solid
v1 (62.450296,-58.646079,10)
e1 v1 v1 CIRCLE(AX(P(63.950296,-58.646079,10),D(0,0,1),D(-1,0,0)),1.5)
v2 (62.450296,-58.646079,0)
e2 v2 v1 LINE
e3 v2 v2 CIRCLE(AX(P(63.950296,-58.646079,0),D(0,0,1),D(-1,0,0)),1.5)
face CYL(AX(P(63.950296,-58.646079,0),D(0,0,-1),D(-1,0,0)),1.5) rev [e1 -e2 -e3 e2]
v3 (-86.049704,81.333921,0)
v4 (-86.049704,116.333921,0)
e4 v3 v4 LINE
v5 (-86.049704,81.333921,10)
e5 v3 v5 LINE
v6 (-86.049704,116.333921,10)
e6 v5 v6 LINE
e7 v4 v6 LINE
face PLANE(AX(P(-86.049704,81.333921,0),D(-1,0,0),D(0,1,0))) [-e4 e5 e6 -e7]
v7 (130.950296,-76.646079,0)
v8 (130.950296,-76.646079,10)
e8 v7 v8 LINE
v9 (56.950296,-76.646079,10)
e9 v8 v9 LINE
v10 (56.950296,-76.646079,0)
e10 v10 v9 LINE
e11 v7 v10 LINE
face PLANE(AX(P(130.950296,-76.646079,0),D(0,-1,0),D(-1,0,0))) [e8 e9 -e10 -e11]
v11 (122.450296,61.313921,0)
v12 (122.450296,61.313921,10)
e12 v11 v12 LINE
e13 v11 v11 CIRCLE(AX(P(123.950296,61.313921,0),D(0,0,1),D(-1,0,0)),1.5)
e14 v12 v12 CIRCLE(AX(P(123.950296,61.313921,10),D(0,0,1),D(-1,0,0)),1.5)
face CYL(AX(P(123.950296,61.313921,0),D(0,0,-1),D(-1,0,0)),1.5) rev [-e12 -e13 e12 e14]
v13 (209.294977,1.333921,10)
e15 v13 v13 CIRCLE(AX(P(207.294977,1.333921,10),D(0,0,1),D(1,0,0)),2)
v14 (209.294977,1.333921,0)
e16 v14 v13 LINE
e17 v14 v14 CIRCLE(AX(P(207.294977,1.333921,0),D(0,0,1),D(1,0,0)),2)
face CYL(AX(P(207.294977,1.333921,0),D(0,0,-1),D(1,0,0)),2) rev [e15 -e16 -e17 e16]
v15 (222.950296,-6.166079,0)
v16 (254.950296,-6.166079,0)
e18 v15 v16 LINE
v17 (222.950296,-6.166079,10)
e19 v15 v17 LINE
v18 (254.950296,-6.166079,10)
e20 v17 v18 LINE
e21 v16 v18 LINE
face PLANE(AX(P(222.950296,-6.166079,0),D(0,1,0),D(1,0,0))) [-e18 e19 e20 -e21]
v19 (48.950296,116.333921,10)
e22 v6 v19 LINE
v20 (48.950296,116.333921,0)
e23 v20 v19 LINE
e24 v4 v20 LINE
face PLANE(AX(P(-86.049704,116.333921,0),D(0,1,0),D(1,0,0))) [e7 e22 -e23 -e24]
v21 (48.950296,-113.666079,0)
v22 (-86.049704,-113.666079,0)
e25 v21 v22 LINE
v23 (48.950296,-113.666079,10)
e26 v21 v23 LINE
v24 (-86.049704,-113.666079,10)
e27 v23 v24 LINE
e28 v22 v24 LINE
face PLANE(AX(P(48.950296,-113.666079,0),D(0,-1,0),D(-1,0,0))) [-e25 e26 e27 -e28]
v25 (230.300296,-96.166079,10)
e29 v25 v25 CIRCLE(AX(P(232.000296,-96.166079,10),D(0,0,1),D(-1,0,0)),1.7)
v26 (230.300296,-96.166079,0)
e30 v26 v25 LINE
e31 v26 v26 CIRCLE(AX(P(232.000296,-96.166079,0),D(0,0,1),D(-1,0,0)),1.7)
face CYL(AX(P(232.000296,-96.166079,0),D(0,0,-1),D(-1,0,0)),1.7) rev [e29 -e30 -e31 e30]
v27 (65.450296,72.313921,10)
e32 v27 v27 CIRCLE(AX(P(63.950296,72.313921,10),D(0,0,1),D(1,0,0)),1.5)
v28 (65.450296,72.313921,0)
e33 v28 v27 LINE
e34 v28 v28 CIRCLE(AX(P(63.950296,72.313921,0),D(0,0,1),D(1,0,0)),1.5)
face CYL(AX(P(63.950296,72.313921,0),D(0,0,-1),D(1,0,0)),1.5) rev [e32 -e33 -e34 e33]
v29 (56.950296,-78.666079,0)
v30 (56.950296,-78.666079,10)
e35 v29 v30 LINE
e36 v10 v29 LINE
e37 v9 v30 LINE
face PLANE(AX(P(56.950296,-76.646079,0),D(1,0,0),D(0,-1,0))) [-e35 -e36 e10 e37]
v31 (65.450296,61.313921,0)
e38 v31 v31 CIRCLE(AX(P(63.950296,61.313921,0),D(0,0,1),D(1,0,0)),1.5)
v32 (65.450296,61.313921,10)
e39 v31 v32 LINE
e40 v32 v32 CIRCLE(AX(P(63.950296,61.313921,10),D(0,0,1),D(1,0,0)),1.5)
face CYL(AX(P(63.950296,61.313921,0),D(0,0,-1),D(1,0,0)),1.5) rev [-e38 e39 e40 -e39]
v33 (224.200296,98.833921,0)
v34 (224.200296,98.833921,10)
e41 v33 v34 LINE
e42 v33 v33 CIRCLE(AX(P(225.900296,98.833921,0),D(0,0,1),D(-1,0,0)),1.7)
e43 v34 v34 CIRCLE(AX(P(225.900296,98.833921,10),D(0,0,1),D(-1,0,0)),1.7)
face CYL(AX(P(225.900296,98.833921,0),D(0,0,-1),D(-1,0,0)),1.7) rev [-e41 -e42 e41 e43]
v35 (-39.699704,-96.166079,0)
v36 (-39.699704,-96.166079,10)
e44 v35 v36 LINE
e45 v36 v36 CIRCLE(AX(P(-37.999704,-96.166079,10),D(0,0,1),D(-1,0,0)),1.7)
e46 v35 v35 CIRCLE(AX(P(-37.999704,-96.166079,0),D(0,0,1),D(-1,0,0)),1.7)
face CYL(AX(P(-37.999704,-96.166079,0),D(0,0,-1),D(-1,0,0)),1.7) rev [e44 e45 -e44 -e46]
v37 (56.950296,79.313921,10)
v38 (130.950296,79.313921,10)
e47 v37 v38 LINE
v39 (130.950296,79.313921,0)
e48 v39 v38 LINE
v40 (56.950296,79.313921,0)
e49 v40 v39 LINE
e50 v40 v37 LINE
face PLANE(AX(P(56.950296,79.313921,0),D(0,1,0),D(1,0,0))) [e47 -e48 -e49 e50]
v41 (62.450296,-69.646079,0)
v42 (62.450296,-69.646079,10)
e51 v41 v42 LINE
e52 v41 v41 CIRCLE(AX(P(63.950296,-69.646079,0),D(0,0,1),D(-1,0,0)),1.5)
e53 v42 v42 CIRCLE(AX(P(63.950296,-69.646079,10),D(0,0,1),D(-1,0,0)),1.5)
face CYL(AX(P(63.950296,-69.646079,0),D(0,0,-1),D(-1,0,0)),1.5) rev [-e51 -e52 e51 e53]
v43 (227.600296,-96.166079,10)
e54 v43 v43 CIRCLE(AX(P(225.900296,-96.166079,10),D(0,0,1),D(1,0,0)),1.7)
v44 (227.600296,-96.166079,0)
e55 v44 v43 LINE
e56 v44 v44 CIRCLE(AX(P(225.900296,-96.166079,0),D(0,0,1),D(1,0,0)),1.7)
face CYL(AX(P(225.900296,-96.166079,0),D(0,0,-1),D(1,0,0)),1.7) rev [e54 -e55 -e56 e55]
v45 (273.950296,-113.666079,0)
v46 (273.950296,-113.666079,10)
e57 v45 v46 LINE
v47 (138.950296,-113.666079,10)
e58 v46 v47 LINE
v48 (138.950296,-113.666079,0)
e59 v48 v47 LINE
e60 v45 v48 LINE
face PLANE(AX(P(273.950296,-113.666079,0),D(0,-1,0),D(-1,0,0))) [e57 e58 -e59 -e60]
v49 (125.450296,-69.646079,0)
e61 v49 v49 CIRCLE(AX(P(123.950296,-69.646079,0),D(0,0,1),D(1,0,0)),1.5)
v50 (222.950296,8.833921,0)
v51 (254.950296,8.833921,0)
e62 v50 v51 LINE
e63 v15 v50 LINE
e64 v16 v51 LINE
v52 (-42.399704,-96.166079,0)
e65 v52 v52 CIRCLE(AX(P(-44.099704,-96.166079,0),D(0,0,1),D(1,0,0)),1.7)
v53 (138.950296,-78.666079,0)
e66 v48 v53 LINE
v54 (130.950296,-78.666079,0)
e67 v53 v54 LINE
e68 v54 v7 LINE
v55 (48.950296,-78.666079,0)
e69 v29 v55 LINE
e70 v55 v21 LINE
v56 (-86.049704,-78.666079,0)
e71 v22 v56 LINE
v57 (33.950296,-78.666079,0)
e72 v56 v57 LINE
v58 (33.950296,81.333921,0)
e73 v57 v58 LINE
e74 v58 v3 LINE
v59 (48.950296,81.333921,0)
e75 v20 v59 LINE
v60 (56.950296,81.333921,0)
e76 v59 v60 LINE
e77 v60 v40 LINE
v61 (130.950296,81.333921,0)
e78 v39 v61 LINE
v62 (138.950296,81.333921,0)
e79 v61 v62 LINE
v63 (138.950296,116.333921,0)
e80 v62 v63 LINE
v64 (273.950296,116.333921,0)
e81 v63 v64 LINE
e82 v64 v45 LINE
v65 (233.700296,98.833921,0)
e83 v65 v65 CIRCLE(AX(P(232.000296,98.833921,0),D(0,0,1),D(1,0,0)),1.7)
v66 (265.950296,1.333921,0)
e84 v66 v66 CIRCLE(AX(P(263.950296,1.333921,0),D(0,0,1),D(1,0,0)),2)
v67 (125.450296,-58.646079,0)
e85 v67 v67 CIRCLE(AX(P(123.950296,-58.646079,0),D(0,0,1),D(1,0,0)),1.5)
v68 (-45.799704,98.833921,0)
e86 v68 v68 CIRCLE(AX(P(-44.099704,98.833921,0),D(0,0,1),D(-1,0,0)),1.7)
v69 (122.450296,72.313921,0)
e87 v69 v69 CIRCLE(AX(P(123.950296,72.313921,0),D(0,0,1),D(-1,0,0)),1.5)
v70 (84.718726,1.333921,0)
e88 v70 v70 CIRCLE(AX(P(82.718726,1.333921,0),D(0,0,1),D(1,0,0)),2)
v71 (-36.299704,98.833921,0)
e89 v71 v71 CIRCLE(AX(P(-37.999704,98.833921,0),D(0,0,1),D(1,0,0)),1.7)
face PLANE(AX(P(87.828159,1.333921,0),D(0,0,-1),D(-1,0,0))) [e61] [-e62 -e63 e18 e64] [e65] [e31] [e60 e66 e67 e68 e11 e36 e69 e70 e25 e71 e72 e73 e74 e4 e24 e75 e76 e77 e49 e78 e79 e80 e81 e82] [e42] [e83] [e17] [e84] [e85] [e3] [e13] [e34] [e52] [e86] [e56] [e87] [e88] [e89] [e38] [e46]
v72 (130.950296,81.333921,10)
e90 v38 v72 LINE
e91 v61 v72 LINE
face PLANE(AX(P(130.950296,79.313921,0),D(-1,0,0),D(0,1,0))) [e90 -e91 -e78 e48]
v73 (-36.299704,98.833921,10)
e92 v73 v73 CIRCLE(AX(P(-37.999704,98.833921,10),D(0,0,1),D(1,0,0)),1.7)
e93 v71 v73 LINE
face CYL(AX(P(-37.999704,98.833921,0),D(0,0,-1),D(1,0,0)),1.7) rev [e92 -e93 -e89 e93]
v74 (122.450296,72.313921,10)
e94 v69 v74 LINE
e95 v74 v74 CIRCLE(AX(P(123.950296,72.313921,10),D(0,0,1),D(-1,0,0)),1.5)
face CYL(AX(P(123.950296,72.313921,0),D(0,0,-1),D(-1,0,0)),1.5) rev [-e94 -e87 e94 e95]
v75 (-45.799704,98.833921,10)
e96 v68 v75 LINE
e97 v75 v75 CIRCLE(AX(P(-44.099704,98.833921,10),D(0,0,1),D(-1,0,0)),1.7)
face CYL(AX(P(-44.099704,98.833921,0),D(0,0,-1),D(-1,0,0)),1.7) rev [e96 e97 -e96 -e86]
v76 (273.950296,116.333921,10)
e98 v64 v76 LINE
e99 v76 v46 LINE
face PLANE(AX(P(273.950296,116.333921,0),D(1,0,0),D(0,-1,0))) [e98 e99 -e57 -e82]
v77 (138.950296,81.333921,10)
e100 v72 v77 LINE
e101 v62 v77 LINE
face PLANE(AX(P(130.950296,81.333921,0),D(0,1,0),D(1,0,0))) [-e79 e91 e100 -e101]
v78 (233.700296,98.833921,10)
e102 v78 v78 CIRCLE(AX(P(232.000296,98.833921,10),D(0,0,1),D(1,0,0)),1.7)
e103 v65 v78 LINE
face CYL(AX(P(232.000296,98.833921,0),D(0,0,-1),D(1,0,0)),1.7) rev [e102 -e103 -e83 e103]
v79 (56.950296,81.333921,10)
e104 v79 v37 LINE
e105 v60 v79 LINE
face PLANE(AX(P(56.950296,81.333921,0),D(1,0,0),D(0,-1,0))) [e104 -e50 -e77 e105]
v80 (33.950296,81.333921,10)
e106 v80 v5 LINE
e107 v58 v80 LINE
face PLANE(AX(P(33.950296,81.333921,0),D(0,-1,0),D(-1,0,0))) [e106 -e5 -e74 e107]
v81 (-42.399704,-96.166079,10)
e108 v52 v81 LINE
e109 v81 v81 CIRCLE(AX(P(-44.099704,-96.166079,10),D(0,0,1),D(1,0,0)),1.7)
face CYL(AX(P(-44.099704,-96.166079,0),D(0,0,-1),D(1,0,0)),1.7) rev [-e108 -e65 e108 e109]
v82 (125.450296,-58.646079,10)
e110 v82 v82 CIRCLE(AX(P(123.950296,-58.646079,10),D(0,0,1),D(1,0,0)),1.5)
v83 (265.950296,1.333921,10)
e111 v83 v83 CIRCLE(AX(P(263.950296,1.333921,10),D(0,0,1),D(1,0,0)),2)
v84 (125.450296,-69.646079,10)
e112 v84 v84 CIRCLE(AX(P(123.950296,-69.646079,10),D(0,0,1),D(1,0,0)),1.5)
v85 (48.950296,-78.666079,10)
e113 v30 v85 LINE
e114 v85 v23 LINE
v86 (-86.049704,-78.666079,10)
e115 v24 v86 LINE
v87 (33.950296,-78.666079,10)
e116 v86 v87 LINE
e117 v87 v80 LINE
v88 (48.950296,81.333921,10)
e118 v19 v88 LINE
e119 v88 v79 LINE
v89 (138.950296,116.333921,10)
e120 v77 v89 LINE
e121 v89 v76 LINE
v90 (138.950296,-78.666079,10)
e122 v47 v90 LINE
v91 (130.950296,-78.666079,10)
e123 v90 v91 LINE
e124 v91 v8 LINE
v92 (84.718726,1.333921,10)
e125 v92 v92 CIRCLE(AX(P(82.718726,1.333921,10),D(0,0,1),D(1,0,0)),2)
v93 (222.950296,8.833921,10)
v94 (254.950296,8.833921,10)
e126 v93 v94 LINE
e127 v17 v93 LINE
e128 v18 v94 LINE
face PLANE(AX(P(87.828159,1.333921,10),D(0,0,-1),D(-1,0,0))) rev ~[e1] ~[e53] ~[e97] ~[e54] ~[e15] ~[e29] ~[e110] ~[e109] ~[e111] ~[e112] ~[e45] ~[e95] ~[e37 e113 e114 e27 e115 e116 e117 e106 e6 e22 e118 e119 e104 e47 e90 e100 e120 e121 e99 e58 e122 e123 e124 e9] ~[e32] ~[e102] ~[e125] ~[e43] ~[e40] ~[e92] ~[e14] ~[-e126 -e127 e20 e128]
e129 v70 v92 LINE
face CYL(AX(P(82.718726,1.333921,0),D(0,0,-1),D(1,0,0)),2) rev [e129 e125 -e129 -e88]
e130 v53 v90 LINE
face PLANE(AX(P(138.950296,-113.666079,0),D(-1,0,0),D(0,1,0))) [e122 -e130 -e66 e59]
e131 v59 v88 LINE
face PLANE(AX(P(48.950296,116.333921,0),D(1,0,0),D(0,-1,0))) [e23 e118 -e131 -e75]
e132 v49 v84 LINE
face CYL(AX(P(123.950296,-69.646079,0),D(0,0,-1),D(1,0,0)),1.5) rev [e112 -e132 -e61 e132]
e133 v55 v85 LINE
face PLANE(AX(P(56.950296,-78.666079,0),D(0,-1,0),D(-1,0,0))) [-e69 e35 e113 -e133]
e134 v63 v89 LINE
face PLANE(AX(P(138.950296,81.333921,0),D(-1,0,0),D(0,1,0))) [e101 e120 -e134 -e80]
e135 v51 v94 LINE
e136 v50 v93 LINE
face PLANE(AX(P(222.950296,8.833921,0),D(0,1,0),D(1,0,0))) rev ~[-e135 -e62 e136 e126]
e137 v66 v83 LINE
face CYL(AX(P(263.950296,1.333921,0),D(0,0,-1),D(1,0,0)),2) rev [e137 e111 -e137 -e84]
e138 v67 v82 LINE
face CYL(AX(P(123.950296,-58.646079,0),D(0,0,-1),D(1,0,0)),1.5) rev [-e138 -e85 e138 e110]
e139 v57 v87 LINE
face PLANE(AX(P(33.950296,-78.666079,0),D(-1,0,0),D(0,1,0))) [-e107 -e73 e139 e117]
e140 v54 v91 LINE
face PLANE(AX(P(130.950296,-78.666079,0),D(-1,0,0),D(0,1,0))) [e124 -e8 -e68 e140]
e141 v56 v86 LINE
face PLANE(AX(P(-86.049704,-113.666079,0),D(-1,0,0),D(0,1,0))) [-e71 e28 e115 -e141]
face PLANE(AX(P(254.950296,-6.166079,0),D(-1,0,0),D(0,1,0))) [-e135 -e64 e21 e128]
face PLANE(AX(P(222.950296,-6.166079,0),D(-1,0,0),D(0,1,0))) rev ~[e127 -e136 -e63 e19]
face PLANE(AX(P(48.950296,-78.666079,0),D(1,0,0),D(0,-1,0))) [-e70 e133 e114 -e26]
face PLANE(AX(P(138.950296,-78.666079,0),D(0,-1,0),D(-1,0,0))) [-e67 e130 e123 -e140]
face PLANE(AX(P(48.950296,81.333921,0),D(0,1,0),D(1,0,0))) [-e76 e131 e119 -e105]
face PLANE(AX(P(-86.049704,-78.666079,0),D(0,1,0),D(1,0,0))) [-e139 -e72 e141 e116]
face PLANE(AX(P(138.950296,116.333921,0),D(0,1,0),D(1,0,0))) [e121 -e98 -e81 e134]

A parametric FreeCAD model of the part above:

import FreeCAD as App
import Part
import Sketcher
Q = App.Units.Quantity


def add_polygon(sketch, points):
    """Adds a closed chain of lines whose ends are joined by coincident constraints."""
    first, n = sketch.GeometryCount, len(points)
    for a, b in zip(points, points[1:] + points[:1]):
        sketch.addGeometry(Part.LineSegment(App.Vector(*a, 0), App.Vector(*b, 0)), False)
    for i in range(n):
        sketch.addConstraint(Sketcher.Constraint("Coincident", first + i, 2, first + (i + 1) % n, 1))

doc = App.newDocument("Part")
body = doc.addObject("PartDesign::Body", "Body")

# Sketch on XY plane
sketch1 = doc.addObject("Sketcher::SketchObject", "Sketch")
body.addObject(sketch1)
sketch1.AttachmentSupport = (doc.XY_Plane, [""])
sketch1.MapMode = "FlatFace"
add_polygon(sketch1, [(49, 116.3), (-86, 116.3), (-86, 81.3), (34, 81.3), (34, -78.7), (-86, -78.7), (-86, -113.7), (49, -113.7), (49, -78.7), (57, -78.7), (57, -76.6), (131, -76.6), (131, -78.7), (139, -78.7), (139, -113.7), (274, -113.7), (274, 116.3), (139, 116.3), (139, 81.3), (131, 81.3), (131, 79.3), (57, 79.3), (57, 81.3), (49, 81.3)])  # lines 0-23
sketch1.addGeometry(Part.Circle(App.Vector(232, -96.2, 0), App.Vector(0, 0, 1), 1.7), False)  # 24
sketch1.addGeometry(Part.Circle(App.Vector(225.9, -96.2, 0), App.Vector(0, 0, 1), 1.7), False)  # 25
sketch1.addGeometry(Part.Circle(App.Vector(124, -69.6, 0), App.Vector(0, 0, 1), 1.5), False)  # 26
sketch1.addGeometry(Part.Circle(App.Vector(124, -58.6, 0), App.Vector(0, 0, 1), 1.5), False)  # 27
sketch1.addGeometry(Part.Circle(App.Vector(64, -69.6, 0), App.Vector(0, 0, 1), 1.5), False)  # 28
sketch1.addGeometry(Part.Circle(App.Vector(64, -58.6, 0), App.Vector(0, 0, 1), 1.5), False)  # 29
sketch1.addGeometry(Part.Circle(App.Vector(-38, -96.2, 0), App.Vector(0, 0, 1), 1.7), False)  # 30
sketch1.addGeometry(Part.Circle(App.Vector(-44.1, -96.2, 0), App.Vector(0, 0, 1), 1.7), False)  # 31
sketch1.addGeometry(Part.Circle(App.Vector(264, 1.3, 0), App.Vector(0, 0, 1), 2), False)  # 32
add_polygon(sketch1, [(223, -6.2), (223, 8.8), (255, 8.8), (255, -6.2)])  # lines 33-36
sketch1.addGeometry(Part.Circle(App.Vector(207.3, 1.3, 0), App.Vector(0, 0, 1), 2), False)  # 37
sketch1.addGeometry(Part.Circle(App.Vector(232, 98.8, 0), App.Vector(0, 0, 1), 1.7), False)  # 38
sketch1.addGeometry(Part.Circle(App.Vector(225.9, 98.8, 0), App.Vector(0, 0, 1), 1.7), False)  # 39
sketch1.addGeometry(Part.Circle(App.Vector(124, 61.3, 0), App.Vector(0, 0, 1), 1.5), False)  # 40
sketch1.addGeometry(Part.Circle(App.Vector(124, 72.3, 0), App.Vector(0, 0, 1), 1.5), False)  # 41
sketch1.addGeometry(Part.Circle(App.Vector(82.7, 1.3, 0), App.Vector(0, 0, 1), 2), False)  # 42
sketch1.addGeometry(Part.Circle(App.Vector(64, 61.3, 0), App.Vector(0, 0, 1), 1.5), False)  # 43
sketch1.addGeometry(Part.Circle(App.Vector(64, 72.3, 0), App.Vector(0, 0, 1), 1.5), False)  # 44
sketch1.addGeometry(Part.Circle(App.Vector(-38, 98.8, 0), App.Vector(0, 0, 1), 1.7), False)  # 45
sketch1.addGeometry(Part.Circle(App.Vector(-44.1, 98.8, 0), App.Vector(0, 0, 1), 1.7), False)  # 46
sketch1.addConstraint(Sketcher.Constraint("Horizontal", 0))
sketch1.addConstraint(Sketcher.Constraint("Vertical", 1))
sketch1.addConstraint(Sketcher.Constraint("Horizontal", 2))
sketch1.addConstraint(Sketcher.Constraint("Vertical", 3))
sketch1.addConstraint(Sketcher.Constraint("Horizontal", 4))
sketch1.addConstraint(Sketcher.Constraint("Vertical", 5))
sketch1.addConstraint(Sketcher.Constraint("Horizontal", 6))
sketch1.addConstraint(Sketcher.Constraint("Vertical", 7))
sketch1.addConstraint(Sketcher.Constraint("Horizontal", 8))
sketch1.addConstraint(Sketcher.Constraint("Vertical", 9))
sketch1.addConstraint(Sketcher.Constraint("Horizontal", 10))
sketch1.addConstraint(Sketcher.Constraint("Vertical", 11))
sketch1.addConstraint(Sketcher.Constraint("Horizontal", 12))
sketch1.addConstraint(Sketcher.Constraint("Vertical", 13))
sketch1.addConstraint(Sketcher.Constraint("Horizontal", 14))
sketch1.addConstraint(Sketcher.Constraint("Vertical", 15))
sketch1.addConstraint(Sketcher.Constraint("Horizontal", 16))
sketch1.addConstraint(Sketcher.Constraint("Vertical", 17))
sketch1.addConstraint(Sketcher.Constraint("Horizontal", 18))
sketch1.addConstraint(Sketcher.Constraint("Vertical", 19))
sketch1.addConstraint(Sketcher.Constraint("Horizontal", 20))
sketch1.addConstraint(Sketcher.Constraint("Vertical", 21))
sketch1.addConstraint(Sketcher.Constraint("Horizontal", 22))
sketch1.addConstraint(Sketcher.Constraint("Vertical", 23))
sketch1.addConstraint(Sketcher.Constraint("Vertical", 33))
sketch1.addConstraint(Sketcher.Constraint("Horizontal", 34))
sketch1.addConstraint(Sketcher.Constraint("Vertical", 35))
sketch1.addConstraint(Sketcher.Constraint("Horizontal", 36))
sketch1.addConstraint(Sketcher.Constraint("Equal", 24, 25))
sketch1.addConstraint(Sketcher.Constraint("Equal", 26, 27))
sketch1.addConstraint(Sketcher.Constraint("Equal", 27, 28))
sketch1.addConstraint(Sketcher.Constraint("Equal", 28, 29))
sketch1.addConstraint(Sketcher.Constraint("Equal", 25, 30))
sketch1.addConstraint(Sketcher.Constraint("Equal", 30, 31))
sketch1.addConstraint(Sketcher.Constraint("Equal", 32, 37))
sketch1.addConstraint(Sketcher.Constraint("Equal", 31, 38))
sketch1.addConstraint(Sketcher.Constraint("Equal", 38, 39))
sketch1.addConstraint(Sketcher.Constraint("Equal", 29, 40))
sketch1.addConstraint(Sketcher.Constraint("Equal", 40, 41))
sketch1.addConstraint(Sketcher.Constraint("Equal", 37, 42))
sketch1.addConstraint(Sketcher.Constraint("Equal", 41, 43))
sketch1.addConstraint(Sketcher.Constraint("Equal", 43, 44))
sketch1.addConstraint(Sketcher.Constraint("Equal", 39, 45))
sketch1.addConstraint(Sketcher.Constraint("Equal", 45, 46))
sketch1.addConstraint(Sketcher.Constraint("Horizontal", 24, 3, 25, 3))
sketch1.addConstraint(Sketcher.Constraint("Horizontal", 26, 3, 28, 3))
sketch1.addConstraint(Sketcher.Constraint("Horizontal", 27, 3, 29, 3))
sketch1.addConstraint(Sketcher.Constraint("Horizontal", 25, 3, 30, 3))
sketch1.addConstraint(Sketcher.Constraint("Horizontal", 30, 3, 31, 3))
sketch1.addConstraint(Sketcher.Constraint("Horizontal", 32, 3, 37, 3))
sketch1.addConstraint(Sketcher.Constraint("Horizontal", 38, 3, 39, 3))
sketch1.addConstraint(Sketcher.Constraint("Horizontal", 37, 3, 42, 3))
sketch1.addConstraint(Sketcher.Constraint("Horizontal", 40, 3, 43, 3))
sketch1.addConstraint(Sketcher.Constraint("Horizontal", 41, 3, 44, 3))
sketch1.addConstraint(Sketcher.Constraint("Horizontal", 39, 3, 45, 3))
sketch1.addConstraint(Sketcher.Constraint("Horizontal", 45, 3, 46, 3))
sketch1.addConstraint(Sketcher.Constraint("Horizontal", 4, 2, 7, 2))
sketch1.addConstraint(Sketcher.Constraint("Horizontal", 8, 2, 11, 2))
sketch1.addConstraint(Sketcher.Constraint("Horizontal", 6, 2, 13, 2))
sketch1.addConstraint(Sketcher.Constraint("Horizontal", 0, 2, 15, 2))
sketch1.addConstraint(Sketcher.Constraint("Horizontal", 2, 2, 17, 2))
sketch1.addConstraint(Sketcher.Constraint("Horizontal", 18, 2, 21, 2))
sketch1.addConstraint(Sketcher.Constraint("Vertical", 26, 3, 27, 3))
sketch1.addConstraint(Sketcher.Constraint("Vertical", 28, 3, 29, 3))
sketch1.addConstraint(Sketcher.Constraint("Vertical", 24, 3, 38, 3))
sketch1.addConstraint(Sketcher.Constraint("Vertical", 25, 3, 39, 3))
sketch1.addConstraint(Sketcher.Constraint("Vertical", 27, 3, 40, 3))
sketch1.addConstraint(Sketcher.Constraint("Vertical", 40, 3, 41, 3))
sketch1.addConstraint(Sketcher.Constraint("Vertical", 29, 3, 43, 3))
sketch1.addConstraint(Sketcher.Constraint("Vertical", 43, 3, 44, 3))
sketch1.addConstraint(Sketcher.Constraint("Vertical", 30, 3, 45, 3))
sketch1.addConstraint(Sketcher.Constraint("Vertical", 31, 3, 46, 3))
sketch1.addConstraint(Sketcher.Constraint("Vertical", 1, 2, 4, 2))
sketch1.addConstraint(Sketcher.Constraint("Vertical", 13, 2, 16, 2))
sketch1.addConstraint(Sketcher.Constraint("Vertical", 11, 2, 18, 2))
sketch1.addConstraint(Sketcher.Constraint("Vertical", 9, 2, 20, 2))
sketch1.addConstraint(Sketcher.Constraint("Vertical", 7, 2, 22, 2))
sketch1.addConstraint(Sketcher.Constraint("Equal", 8, 12))
sketch1.addConstraint(Sketcher.Constraint("Equal", 6, 14))
sketch1.addConstraint(Sketcher.Constraint("Equal", 1, 5))
sketch1.addConstraint(Sketcher.Constraint("Equal", 11, 19))
sketch1.addConstraint(Sketcher.Constraint("Diameter", 26, Q("3 mm")))
sketch1.addConstraint(Sketcher.Constraint("Diameter", 32, Q("4 mm")))
sketch1.addConstraint(Sketcher.Constraint("Diameter", 24, Q("3.4 mm")))
sketch1.addConstraint(Sketcher.Constraint("DistanceX", 0, 2, 0, 1, Q("135 mm")))
sketch1.addConstraint(Sketcher.Constraint("DistanceX", 2, 1, 2, 2, Q("120 mm")))
sketch1.addConstraint(Sketcher.Constraint("DistanceX", 8, 1, 8, 2, Q("8 mm")))
sketch1.addConstraint(Sketcher.Constraint("DistanceX", 10, 1, 10, 2, Q("74 mm")))
sketch1.addConstraint(Sketcher.Constraint("DistanceX", 34, 1, 34, 2, Q("32 mm")))
sketch1.addConstraint(Sketcher.Constraint("DistanceY", 1, 2, 1, 1, Q("35 mm")))
sketch1.addConstraint(Sketcher.Constraint("DistanceY", 3, 2, 3, 1, Q("160 mm")))
sketch1.addConstraint(Sketcher.Constraint("DistanceY", 33, 1, 33, 2, Q("15 mm")))
sketch1.addConstraint(Sketcher.Constraint("DistanceY", 26, 3, 27, 3, Q("11 mm")))
sketch1.addConstraint(Sketcher.Constraint("DistanceX", 28, 3, 26, 3, Q("60 mm")))
sketch1.addConstraint(Sketcher.Constraint("DistanceX", 27, 3, 32, 3, Q("140 mm")))
sketch1.addConstraint(Sketcher.Constraint("DistanceY", 24, 3, 38, 3, Q("195 mm")))
sketch1.addConstraint(Sketcher.Constraint("DistanceY", 40, 3, 41, 3, Q("11 mm")))
sketch1.addConstraint(Sketcher.Constraint("DistanceX", 0, 2, 44, 3, Q("150 mm")))
sketch1.addConstraint(Sketcher.Constraint("DistanceY", 42, 3, 0, 2, Q("115 mm")))
sketch1.addConstraint(Sketcher.Constraint("DistanceY", 9, 2, 28, 3, Q("7 mm")))
sketch1.addConstraint(Sketcher.Constraint("DistanceY", 41, 3, 19, 2, Q("7 mm")))
sketch1.addConstraint(Sketcher.Constraint("DistanceX", 33, 2, 32, 3, Q("41 mm")))
sketch1.addConstraint(Sketcher.Constraint("DistanceY", 33, 2, 39, 3, Q("90 mm")))
sketch1.addConstraint(Sketcher.Constraint("DistanceY", 9, 1, 9, 2, Q("2.02 mm")))
sketch1.addConstraint(Sketcher.Constraint("DistanceX", 25, 3, 24, 3, Q("6.1 mm")))
sketch1.addConstraint(Sketcher.Constraint("DistanceX", 30, 3, 25, 3, Q("263.9 mm")))
sketch1.addConstraint(Sketcher.Constraint("DistanceX", 31, 3, 30, 3, Q("6.1 mm")))
sketch1.addConstraint(Sketcher.Constraint("DistanceY", 24, 3, 32, 3, Q("97.5 mm")))
sketch1.addConstraint(Sketcher.Constraint("DistanceX", 26, 3, 25, 3, Q("101.95 mm")))
sketch1.addConstraint(Sketcher.Constraint("DistanceY", 24, 3, -1, 1, Q("96.166079 mm")))
sketch1.addConstraint(Sketcher.Constraint("DistanceX", 37, 3, 32, 3, Q("56.655319 mm")))
sketch1.addConstraint(Sketcher.Constraint("DistanceX", 29, 3, 42, 3, Q("18.76843 mm")))
sketch1.addConstraint(Sketcher.Constraint("DistanceX", -1, 1, 24, 3, Q("232.000296 mm")))
pad1 = doc.addObject("PartDesign::Pad", "Pad")
body.addObject(pad1)
pad1.Profile = sketch1
pad1.Length = 10

doc.recompute()
